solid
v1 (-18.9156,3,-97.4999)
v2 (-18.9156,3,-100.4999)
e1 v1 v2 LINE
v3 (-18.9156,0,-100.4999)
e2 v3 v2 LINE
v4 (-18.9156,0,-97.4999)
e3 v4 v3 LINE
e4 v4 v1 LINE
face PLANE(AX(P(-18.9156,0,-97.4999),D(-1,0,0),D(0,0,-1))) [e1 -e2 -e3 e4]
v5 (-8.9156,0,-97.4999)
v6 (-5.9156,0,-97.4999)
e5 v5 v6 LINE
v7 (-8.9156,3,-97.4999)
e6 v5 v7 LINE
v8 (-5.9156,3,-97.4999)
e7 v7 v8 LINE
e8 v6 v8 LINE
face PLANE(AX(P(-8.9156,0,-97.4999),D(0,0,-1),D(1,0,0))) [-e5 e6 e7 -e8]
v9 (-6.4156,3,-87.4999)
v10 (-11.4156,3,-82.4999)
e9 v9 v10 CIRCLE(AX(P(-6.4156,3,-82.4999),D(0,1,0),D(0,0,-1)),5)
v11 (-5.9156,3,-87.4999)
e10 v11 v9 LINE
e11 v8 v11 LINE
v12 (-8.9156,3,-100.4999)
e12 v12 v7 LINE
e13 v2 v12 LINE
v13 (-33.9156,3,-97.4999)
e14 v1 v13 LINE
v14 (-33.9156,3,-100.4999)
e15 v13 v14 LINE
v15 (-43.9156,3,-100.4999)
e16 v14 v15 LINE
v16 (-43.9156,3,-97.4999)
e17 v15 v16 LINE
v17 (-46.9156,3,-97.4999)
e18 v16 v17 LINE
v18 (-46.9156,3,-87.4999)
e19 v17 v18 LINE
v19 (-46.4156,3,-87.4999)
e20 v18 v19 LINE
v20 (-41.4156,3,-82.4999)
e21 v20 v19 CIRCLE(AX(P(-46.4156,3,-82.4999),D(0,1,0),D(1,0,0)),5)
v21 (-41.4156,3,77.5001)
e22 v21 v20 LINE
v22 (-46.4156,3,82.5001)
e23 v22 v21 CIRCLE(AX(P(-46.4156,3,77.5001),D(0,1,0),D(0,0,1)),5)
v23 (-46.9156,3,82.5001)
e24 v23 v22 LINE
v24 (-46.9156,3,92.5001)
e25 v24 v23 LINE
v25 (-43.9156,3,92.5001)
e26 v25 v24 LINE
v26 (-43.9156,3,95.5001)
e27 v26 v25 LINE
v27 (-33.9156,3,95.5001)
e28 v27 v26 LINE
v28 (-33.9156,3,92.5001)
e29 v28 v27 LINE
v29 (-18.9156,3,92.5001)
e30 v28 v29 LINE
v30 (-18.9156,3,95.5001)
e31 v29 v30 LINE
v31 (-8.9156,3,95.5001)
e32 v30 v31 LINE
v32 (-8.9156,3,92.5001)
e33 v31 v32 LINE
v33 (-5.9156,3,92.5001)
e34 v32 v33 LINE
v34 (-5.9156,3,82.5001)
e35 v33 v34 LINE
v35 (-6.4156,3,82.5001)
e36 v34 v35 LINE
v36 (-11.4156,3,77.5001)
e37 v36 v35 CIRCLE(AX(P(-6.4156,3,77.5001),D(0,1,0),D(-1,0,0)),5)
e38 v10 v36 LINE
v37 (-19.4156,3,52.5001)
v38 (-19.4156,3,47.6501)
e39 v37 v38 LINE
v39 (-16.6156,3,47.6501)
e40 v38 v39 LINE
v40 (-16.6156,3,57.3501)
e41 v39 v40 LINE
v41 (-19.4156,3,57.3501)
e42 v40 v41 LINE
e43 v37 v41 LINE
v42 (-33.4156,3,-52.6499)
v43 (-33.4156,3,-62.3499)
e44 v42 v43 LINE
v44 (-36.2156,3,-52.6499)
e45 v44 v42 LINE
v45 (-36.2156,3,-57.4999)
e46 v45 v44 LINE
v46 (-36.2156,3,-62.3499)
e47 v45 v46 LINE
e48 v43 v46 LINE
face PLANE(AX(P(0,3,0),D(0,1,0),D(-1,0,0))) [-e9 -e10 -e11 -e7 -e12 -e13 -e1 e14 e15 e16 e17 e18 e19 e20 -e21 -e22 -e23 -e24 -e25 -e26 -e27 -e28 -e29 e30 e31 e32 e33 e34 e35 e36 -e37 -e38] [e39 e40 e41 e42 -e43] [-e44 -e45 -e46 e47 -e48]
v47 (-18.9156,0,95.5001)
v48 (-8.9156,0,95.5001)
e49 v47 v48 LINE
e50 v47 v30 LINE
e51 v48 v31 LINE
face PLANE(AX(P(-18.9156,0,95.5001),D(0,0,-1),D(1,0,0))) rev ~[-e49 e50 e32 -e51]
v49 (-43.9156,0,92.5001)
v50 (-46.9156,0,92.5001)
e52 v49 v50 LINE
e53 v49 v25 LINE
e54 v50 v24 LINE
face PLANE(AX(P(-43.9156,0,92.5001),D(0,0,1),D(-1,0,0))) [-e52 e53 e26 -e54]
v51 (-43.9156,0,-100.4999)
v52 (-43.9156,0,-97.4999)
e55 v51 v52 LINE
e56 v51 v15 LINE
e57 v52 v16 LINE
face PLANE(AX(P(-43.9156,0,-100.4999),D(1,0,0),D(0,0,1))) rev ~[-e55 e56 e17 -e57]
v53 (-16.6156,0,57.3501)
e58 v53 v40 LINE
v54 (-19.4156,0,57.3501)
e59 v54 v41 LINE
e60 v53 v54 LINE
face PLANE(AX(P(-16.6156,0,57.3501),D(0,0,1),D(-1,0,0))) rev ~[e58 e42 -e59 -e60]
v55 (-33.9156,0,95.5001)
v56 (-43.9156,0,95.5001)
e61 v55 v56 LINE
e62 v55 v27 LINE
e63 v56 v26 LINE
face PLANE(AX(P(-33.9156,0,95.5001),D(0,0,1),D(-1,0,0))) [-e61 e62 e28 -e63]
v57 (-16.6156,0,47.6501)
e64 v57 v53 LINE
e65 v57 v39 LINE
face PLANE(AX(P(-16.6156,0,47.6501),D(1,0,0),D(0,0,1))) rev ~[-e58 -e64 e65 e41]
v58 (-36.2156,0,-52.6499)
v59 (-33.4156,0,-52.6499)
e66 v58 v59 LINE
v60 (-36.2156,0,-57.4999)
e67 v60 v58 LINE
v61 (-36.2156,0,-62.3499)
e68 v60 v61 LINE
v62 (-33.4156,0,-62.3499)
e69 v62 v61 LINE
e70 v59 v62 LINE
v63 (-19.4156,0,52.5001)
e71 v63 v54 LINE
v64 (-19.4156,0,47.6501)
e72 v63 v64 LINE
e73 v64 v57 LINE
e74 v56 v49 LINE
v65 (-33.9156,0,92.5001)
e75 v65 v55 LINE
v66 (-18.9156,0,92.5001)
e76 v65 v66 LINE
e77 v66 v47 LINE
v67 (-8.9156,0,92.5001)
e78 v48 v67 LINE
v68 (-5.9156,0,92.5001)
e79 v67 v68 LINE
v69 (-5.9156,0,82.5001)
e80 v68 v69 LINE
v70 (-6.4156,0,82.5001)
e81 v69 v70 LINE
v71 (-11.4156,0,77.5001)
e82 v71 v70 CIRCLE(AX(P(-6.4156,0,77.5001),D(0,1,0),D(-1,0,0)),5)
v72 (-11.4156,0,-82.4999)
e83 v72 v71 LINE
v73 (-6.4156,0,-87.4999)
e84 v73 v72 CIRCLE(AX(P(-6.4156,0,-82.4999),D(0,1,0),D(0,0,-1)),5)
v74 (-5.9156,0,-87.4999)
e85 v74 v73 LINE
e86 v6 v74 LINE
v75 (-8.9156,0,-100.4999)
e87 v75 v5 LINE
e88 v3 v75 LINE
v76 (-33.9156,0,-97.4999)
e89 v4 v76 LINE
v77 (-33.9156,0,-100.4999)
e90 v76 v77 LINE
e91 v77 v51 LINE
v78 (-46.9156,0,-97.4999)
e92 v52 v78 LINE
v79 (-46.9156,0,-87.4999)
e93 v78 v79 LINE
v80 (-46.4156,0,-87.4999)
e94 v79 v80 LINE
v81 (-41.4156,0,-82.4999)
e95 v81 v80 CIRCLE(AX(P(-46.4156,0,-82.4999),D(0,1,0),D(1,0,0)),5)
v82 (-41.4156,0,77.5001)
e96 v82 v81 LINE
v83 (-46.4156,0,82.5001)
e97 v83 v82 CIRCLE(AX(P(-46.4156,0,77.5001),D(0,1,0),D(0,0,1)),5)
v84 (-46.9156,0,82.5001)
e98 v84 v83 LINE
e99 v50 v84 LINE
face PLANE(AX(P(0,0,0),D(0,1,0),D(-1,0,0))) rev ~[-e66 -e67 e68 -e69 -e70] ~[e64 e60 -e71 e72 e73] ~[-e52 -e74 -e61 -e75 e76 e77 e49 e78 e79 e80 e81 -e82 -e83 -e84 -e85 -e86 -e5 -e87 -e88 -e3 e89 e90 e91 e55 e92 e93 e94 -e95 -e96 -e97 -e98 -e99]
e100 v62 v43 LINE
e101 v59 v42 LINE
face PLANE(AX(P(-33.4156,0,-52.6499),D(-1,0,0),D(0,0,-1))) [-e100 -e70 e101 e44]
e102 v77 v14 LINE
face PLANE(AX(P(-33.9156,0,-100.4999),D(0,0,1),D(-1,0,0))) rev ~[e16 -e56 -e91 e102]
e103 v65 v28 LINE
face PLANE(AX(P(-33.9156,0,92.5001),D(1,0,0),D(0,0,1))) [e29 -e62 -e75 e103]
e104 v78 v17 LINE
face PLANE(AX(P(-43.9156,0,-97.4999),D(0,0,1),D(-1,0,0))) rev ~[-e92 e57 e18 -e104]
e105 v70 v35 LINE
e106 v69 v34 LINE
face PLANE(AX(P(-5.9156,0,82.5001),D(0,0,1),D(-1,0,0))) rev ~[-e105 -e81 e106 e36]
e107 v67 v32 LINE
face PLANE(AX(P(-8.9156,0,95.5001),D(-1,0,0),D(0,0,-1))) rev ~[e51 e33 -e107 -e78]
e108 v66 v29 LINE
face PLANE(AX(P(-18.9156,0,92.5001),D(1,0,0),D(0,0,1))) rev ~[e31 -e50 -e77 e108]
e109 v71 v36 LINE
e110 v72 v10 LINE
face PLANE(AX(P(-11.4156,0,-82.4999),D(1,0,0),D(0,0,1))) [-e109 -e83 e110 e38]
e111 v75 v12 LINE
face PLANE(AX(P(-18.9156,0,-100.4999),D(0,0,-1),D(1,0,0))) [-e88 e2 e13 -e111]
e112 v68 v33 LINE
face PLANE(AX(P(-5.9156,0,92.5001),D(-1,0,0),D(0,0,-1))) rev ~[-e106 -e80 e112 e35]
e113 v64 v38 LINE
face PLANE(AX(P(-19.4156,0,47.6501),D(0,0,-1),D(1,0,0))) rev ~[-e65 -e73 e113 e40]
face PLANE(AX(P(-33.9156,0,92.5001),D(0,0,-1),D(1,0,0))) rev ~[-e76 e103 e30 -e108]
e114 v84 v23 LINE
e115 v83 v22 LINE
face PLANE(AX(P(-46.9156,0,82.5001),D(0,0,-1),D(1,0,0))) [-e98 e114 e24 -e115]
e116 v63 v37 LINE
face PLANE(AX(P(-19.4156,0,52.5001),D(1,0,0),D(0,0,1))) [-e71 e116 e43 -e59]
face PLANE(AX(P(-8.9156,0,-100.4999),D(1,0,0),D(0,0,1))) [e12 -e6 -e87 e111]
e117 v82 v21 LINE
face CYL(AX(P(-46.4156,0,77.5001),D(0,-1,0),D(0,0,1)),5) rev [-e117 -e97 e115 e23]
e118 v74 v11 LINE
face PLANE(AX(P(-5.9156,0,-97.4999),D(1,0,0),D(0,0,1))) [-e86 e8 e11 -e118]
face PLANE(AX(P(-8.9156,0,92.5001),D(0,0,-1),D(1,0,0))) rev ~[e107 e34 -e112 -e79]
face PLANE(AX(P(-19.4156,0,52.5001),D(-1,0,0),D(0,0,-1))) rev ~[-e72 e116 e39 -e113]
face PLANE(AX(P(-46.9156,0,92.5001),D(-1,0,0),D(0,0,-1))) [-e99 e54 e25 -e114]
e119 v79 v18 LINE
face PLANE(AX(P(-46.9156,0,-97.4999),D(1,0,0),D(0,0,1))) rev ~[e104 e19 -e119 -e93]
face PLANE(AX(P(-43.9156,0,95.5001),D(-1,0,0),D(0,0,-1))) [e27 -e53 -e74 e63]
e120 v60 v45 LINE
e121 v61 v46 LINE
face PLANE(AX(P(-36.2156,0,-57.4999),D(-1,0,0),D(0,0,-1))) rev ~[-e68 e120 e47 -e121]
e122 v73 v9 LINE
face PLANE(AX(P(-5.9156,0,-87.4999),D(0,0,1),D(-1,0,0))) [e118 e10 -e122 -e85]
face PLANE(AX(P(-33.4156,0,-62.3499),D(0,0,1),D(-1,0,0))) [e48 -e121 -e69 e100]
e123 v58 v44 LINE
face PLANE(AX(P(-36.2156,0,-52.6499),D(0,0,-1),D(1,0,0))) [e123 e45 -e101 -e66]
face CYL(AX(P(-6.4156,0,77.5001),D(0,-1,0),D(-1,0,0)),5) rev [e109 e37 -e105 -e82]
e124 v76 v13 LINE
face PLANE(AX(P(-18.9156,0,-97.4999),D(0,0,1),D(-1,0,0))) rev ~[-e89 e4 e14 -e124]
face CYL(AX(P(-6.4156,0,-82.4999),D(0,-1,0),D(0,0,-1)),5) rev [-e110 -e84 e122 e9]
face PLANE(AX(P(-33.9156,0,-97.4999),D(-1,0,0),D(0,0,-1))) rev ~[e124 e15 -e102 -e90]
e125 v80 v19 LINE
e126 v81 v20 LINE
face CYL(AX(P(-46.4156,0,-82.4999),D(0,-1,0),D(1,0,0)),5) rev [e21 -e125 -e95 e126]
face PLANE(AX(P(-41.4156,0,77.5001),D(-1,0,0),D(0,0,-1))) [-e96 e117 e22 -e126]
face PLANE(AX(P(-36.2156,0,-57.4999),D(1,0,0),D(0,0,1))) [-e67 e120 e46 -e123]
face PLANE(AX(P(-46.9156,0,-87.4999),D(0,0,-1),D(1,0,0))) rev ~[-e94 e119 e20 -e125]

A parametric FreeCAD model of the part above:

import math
import FreeCAD as App
import Part
import Sketcher

V = App.Vector


def add_polygon(sketch, points):
    """Adds a closed chain of lines whose ends are joined by coincident constraints."""
    first, n = sketch.GeometryCount, len(points)
    for a, b in zip(points, points[1:] + points[:1]):
        sketch.addGeometry(Part.LineSegment(App.Vector(*a, 0), App.Vector(*b, 0)), False)
    for i in range(n):
        sketch.addConstraint(Sketcher.Constraint("Coincident", first + i, 2, first + (i + 1) % n, 1))

doc = App.newDocument("Part")
params = doc.addObject("Spreadsheet::Sheet", "Params")
for row, (alias, value) in enumerate([
    ("sketch1_radius", "5 mm"),
    ("sketch1_width", "3 mm"),
    ("sketch1_width2", "10 mm"),
    ("sketch1_width3", "15 mm"),
    ("sketch1_height", "160 mm"),
    ("pad1_length", "3 mm"),
], start=1):
    params.set(f"A{row}", alias)
    params.set(f"B{row}", "=" + value)
    params.setAlias(f"B{row}", alias)

body = doc.addObject("PartDesign::Body", "Body")

# Sketch on XZ plane
sketch1 = body.newObject("Sketcher::SketchObject", "Sketch")
sketch1.AttachmentSupport = (doc.getObject("XZ_Plane"), [""])
sketch1.MapMode = "FlatFace"
sketch1.addGeometry(Part.LineSegment(V(-11.4, 77.5, 0), V(-11.4, -82.5, 0)), False)  # 0
sketch1.addGeometry(Part.ArcOfCircle(Part.Circle(V(-6.4, -82.5, 0), V(0, 0, 1), 5), math.radians(180), math.radians(270)), False)  # 1
sketch1.addGeometry(Part.LineSegment(V(-6.4, -87.5, 0), V(-5.9, -87.5, 0)), False)  # 2
sketch1.addGeometry(Part.LineSegment(V(-5.9, -87.5, 0), V(-5.9, -97.5, 0)), False)  # 3
sketch1.addGeometry(Part.LineSegment(V(-5.9, -97.5, 0), V(-8.9, -97.5, 0)), False)  # 4
sketch1.addGeometry(Part.LineSegment(V(-8.9, -97.5, 0), V(-8.9, -100.5, 0)), False)  # 5
sketch1.addGeometry(Part.LineSegment(V(-8.9, -100.5, 0), V(-18.9, -100.5, 0)), False)  # 6
sketch1.addGeometry(Part.LineSegment(V(-18.9, -100.5, 0), V(-18.9, -97.5, 0)), False)  # 7
sketch1.addGeometry(Part.LineSegment(V(-18.9, -97.5, 0), V(-33.9, -97.5, 0)), False)  # 8
sketch1.addGeometry(Part.LineSegment(V(-33.9, -97.5, 0), V(-33.9, -100.5, 0)), False)  # 9
sketch1.addGeometry(Part.LineSegment(V(-33.9, -100.5, 0), V(-43.9, -100.5, 0)), False)  # 10
sketch1.addGeometry(Part.LineSegment(V(-43.9, -100.5, 0), V(-43.9, -97.5, 0)), False)  # 11
sketch1.addGeometry(Part.LineSegment(V(-43.9, -97.5, 0), V(-46.9, -97.5, 0)), False)  # 12
sketch1.addGeometry(Part.LineSegment(V(-46.9, -97.5, 0), V(-46.9, -87.5, 0)), False)  # 13
sketch1.addGeometry(Part.LineSegment(V(-46.9, -87.5, 0), V(-46.4, -87.5, 0)), False)  # 14
sketch1.addGeometry(Part.ArcOfCircle(Part.Circle(V(-46.4, -82.5, 0), V(0, 0, 1), 5), math.radians(-90), math.radians(0)), False)  # 15
sketch1.addGeometry(Part.LineSegment(V(-41.4, -82.5, 0), V(-41.4, 77.5, 0)), False)  # 16
sketch1.addGeometry(Part.ArcOfCircle(Part.Circle(V(-46.4, 77.5, 0), V(0, 0, 1), 5), math.radians(0), math.radians(90)), False)  # 17
sketch1.addGeometry(Part.LineSegment(V(-46.4, 82.5, 0), V(-46.9, 82.5, 0)), False)  # 18
sketch1.addGeometry(Part.LineSegment(V(-46.9, 82.5, 0), V(-46.9, 92.5, 0)), False)  # 19
sketch1.addGeometry(Part.LineSegment(V(-46.9, 92.5, 0), V(-43.9, 92.5, 0)), False)  # 20
sketch1.addGeometry(Part.LineSegment(V(-43.9, 92.5, 0), V(-43.9, 95.5, 0)), False)  # 21
sketch1.addGeometry(Part.LineSegment(V(-43.9, 95.5, 0), V(-33.9, 95.5, 0)), False)  # 22
sketch1.addGeometry(Part.LineSegment(V(-33.9, 95.5, 0), V(-33.9, 92.5, 0)), False)  # 23
sketch1.addGeometry(Part.LineSegment(V(-33.9, 92.5, 0), V(-18.9, 92.5, 0)), False)  # 24
sketch1.addGeometry(Part.LineSegment(V(-18.9, 92.5, 0), V(-18.9, 95.5, 0)), False)  # 25
sketch1.addGeometry(Part.LineSegment(V(-18.9, 95.5, 0), V(-8.9, 95.5, 0)), False)  # 26
sketch1.addGeometry(Part.LineSegment(V(-8.9, 95.5, 0), V(-8.9, 92.5, 0)), False)  # 27
sketch1.addGeometry(Part.LineSegment(V(-8.9, 92.5, 0), V(-5.9, 92.5, 0)), False)  # 28
sketch1.addGeometry(Part.LineSegment(V(-5.9, 92.5, 0), V(-5.9, 82.5, 0)), False)  # 29
sketch1.addGeometry(Part.LineSegment(V(-5.9, 82.5, 0), V(-6.4, 82.5, 0)), False)  # 30
sketch1.addGeometry(Part.ArcOfCircle(Part.Circle(V(-6.4, 77.5, 0), V(0, 0, 1), 5), math.radians(90), math.radians(180)), False)  # 31
add_polygon(sketch1, [(-33.4, -62.3), (-33.4, -52.6), (-36.2, -52.6), (-36.2, -62.3)])  # lines 32-35
add_polygon(sketch1, [(-19.4, 47.7), (-16.6, 47.7), (-16.6, 57.4), (-19.4, 57.4)])  # lines 36-39
sketch1.addConstraint([
    Sketcher.Constraint("Tangent", 0, 2, 1, 1),
    Sketcher.Constraint("Tangent", 1, 2, 2, 1),
    Sketcher.Constraint("Coincident", 2, 2, 3, 1),
    Sketcher.Constraint("Coincident", 3, 2, 4, 1),
    Sketcher.Constraint("Coincident", 4, 2, 5, 1),
    Sketcher.Constraint("Coincident", 5, 2, 6, 1),
    Sketcher.Constraint("Coincident", 6, 2, 7, 1),
    Sketcher.Constraint("Coincident", 7, 2, 8, 1),
    Sketcher.Constraint("Coincident", 8, 2, 9, 1),
    Sketcher.Constraint("Coincident", 9, 2, 10, 1),
    Sketcher.Constraint("Coincident", 10, 2, 11, 1),
    Sketcher.Constraint("Coincident", 11, 2, 12, 1),
    Sketcher.Constraint("Coincident", 12, 2, 13, 1),
    Sketcher.Constraint("Coincident", 13, 2, 14, 1),
    Sketcher.Constraint("Tangent", 14, 2, 15, 1),
    Sketcher.Constraint("Tangent", 15, 2, 16, 1),
    Sketcher.Constraint("Tangent", 16, 2, 17, 1),
    Sketcher.Constraint("Tangent", 17, 2, 18, 1),
    Sketcher.Constraint("Coincident", 18, 2, 19, 1),
    Sketcher.Constraint("Coincident", 19, 2, 20, 1),
    Sketcher.Constraint("Coincident", 20, 2, 21, 1),
    Sketcher.Constraint("Coincident", 21, 2, 22, 1),
    Sketcher.Constraint("Coincident", 22, 2, 23, 1),
    Sketcher.Constraint("Coincident", 23, 2, 24, 1),
    Sketcher.Constraint("Coincident", 24, 2, 25, 1),
    Sketcher.Constraint("Coincident", 25, 2, 26, 1),
    Sketcher.Constraint("Coincident", 26, 2, 27, 1),
    Sketcher.Constraint("Coincident", 27, 2, 28, 1),
    Sketcher.Constraint("Coincident", 28, 2, 29, 1),
    Sketcher.Constraint("Coincident", 29, 2, 30, 1),
    Sketcher.Constraint("Tangent", 30, 2, 31, 1),
    Sketcher.Constraint("Tangent", 31, 2, 0, 1),
    Sketcher.Constraint("Vertical", 0),
    Sketcher.Constraint("Horizontal", 2),
    Sketcher.Constraint("Vertical", 3),
    Sketcher.Constraint("Horizontal", 4),
    Sketcher.Constraint("Vertical", 5),
    Sketcher.Constraint("Horizontal", 6),
    Sketcher.Constraint("Vertical", 7),
    Sketcher.Constraint("Horizontal", 8),
    Sketcher.Constraint("Vertical", 9),
    Sketcher.Constraint("Horizontal", 10),
    Sketcher.Constraint("Vertical", 11),
    Sketcher.Constraint("Horizontal", 12),
    Sketcher.Constraint("Vertical", 13),
    Sketcher.Constraint("Horizontal", 14),
    Sketcher.Constraint("Vertical", 16),
    Sketcher.Constraint("Horizontal", 18),
    Sketcher.Constraint("Vertical", 19),
    Sketcher.Constraint("Horizontal", 20),
    Sketcher.Constraint("Vertical", 21),
    Sketcher.Constraint("Horizontal", 22),
    Sketcher.Constraint("Vertical", 23),
    Sketcher.Constraint("Horizontal", 24),
    Sketcher.Constraint("Vertical", 25),
    Sketcher.Constraint("Horizontal", 26),
    Sketcher.Constraint("Vertical", 27),
    Sketcher.Constraint("Horizontal", 28),
    Sketcher.Constraint("Vertical", 29),
    Sketcher.Constraint("Horizontal", 30),
    Sketcher.Constraint("Vertical", 32),
    Sketcher.Constraint("Horizontal", 33),
    Sketcher.Constraint("Vertical", 34),
    Sketcher.Constraint("Horizontal", 35),
    Sketcher.Constraint("Horizontal", 36),
    Sketcher.Constraint("Vertical", 37),
    Sketcher.Constraint("Horizontal", 38),
    Sketcher.Constraint("Vertical", 39),
    Sketcher.Constraint("Equal", 1, 15),
    Sketcher.Constraint("Equal", 15, 17),
    Sketcher.Constraint("Equal", 17, 31),
    Sketcher.Constraint("Horizontal", 1, 3, 15, 3),
    Sketcher.Constraint("Horizontal", 17, 3, 31, 3),
    Sketcher.Constraint("Horizontal", 4, 2, 7, 2),
    Sketcher.Constraint("Horizontal", 6, 2, 9, 2),
    Sketcher.Constraint("Horizontal", 8, 2, 11, 2),
    Sketcher.Constraint("Horizontal", 20, 2, 23, 2),
    Sketcher.Constraint("Horizontal", 22, 2, 25, 2),
    Sketcher.Constraint("Horizontal", 24, 2, 27, 2),
    Sketcher.Constraint("Vertical", 13, 2, 18, 2),
    Sketcher.Constraint("Vertical", 11, 2, 20, 2),
    Sketcher.Constraint("Vertical", 9, 2, 22, 2),
    Sketcher.Constraint("Vertical", 7, 2, 24, 2),
    Sketcher.Constraint("Vertical", 5, 2, 26, 2),
    Sketcher.Constraint("Vertical", 3, 2, 28, 2),
    Sketcher.Constraint("Equal", 6, 10),
    Sketcher.Constraint("Equal", 4, 12),
    Sketcher.Constraint("Equal", 2, 14),
    Sketcher.Constraint("Equal", 35, 36),
    Sketcher.Constraint("Equal", 26, 3),
    Sketcher.Constraint("Equal", 28, 5),
    Sketcher.Constraint("Equal", 13, 19),
    Sketcher.Constraint("Equal", 11, 21),
    Sketcher.Constraint("Equal", 34, 37),
    Sketcher.Constraint("Radius", 1, 5.0),
    Sketcher.Constraint("DistanceX", 4, 2, 4, 1, 3.0),
    Sketcher.Constraint("DistanceX", 6, 2, 6, 1, 10.0),
    Sketcher.Constraint("DistanceX", 8, 2, 8, 1, 15.0),
    Sketcher.Constraint("DistanceY", 0, 2, 0, 1, 160.0),
    Sketcher.Constraint("DistanceX", 2, 1, 2, 2, 0.5),
    Sketcher.Constraint("DistanceX", 33, 2, 33, 1, 2.8),
    Sketcher.Constraint("DistanceY", 32, 1, 32, 2, 9.7),
    Sketcher.Constraint("DistanceX", 15, 2, 32, 2, 8.0),
    Sketcher.Constraint("DistanceX", 38, 2, 31, 2, 8.0),
    Sketcher.Constraint("DistanceY", 1, 3, -1, 1, 82.5),
    Sketcher.Constraint("DistanceY", 32, 2, -1, 1, 52.65),
    Sketcher.Constraint("DistanceY", -1, 1, 36, 2, 47.65),
    Sketcher.Constraint("DistanceX", 1, 3, -1, 1, 6.4156),
])
sketch1.setExpression("Constraints[102]", "Params.sketch1_radius")
sketch1.setExpression("Constraints[103]", "Params.sketch1_width")
sketch1.setExpression("Constraints[104]", "Params.sketch1_width2")
sketch1.setExpression("Constraints[105]", "Params.sketch1_width3")
sketch1.setExpression("Constraints[106]", "Params.sketch1_height")
pad1 = body.newObject("PartDesign::Pad", "Pad")
pad1.Profile = sketch1
pad1.setExpression("Length", "Params.pad1_length")
pad1.Reversed = True

doc.recompute()
